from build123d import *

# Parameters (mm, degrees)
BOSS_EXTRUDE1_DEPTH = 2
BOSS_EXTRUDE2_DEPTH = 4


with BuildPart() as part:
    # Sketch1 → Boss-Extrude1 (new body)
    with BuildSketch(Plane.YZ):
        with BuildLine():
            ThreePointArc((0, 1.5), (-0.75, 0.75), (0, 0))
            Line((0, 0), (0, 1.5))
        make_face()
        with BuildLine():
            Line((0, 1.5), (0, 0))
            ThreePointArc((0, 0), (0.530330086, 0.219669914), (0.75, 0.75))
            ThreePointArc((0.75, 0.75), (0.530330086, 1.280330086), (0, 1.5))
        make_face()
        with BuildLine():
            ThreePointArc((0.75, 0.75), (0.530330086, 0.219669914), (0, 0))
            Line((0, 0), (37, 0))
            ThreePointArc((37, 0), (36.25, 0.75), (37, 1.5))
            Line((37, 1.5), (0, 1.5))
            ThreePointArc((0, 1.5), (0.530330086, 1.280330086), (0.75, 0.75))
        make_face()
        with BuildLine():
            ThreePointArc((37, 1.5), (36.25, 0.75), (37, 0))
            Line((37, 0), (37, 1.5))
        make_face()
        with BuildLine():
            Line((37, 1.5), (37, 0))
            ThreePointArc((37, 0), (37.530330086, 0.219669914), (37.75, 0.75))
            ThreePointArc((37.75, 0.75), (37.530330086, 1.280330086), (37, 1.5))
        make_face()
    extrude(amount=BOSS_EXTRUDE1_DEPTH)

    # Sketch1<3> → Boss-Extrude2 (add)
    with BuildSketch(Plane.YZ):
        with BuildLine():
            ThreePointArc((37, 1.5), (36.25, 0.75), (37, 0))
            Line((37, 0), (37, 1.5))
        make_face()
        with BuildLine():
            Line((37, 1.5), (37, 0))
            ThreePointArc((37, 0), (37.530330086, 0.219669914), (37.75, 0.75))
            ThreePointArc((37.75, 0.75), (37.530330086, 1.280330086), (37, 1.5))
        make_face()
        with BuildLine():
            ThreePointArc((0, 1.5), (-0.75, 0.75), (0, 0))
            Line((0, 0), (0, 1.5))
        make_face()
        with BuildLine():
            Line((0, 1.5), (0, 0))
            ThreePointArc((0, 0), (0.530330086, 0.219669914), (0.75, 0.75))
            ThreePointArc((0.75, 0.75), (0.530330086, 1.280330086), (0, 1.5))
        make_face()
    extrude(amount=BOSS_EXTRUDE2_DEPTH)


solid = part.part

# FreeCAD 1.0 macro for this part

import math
import FreeCAD as App
import Part
import Sketcher

V = App.Vector

doc = App.newDocument("Part")
body = doc.addObject("PartDesign::Body", "Body")

# Sketch on YZ plane
sketch1 = body.newObject("Sketcher::SketchObject", "Sketch")
sketch1.AttachmentSupport = (doc.getObject("YZ_Plane"), [""])
sketch1.MapMode = "FlatFace"
sketch1.addGeometry([
    Part.LineSegment(V(0, 0, 0), V(37, 0, 0)),  # 0
    Part.ArcOfCircle(Part.Circle(V(37, 0.75, 0), V(0, 0, 1), 0.75), math.radians(-90), math.radians(0)),  # 1
    Part.ArcOfCircle(Part.Circle(V(37, 0.75, 0), V(0, 0, 1), 0.75), math.radians(0), math.radians(90)),  # 2
    Part.LineSegment(V(37, 1.5, 0), V(0, 1.5, 0)),  # 3
    Part.ArcOfCircle(Part.Circle(V(0, 0.75, 0), V(0, 0, 1), 0.75), math.radians(90), math.radians(270)),  # 4
], False)
sketch1.addConstraint([
    Sketcher.Constraint("Tangent", 0, 2, 1, 1),
    Sketcher.Constraint("Tangent", 1, 2, 2, 1),
    Sketcher.Constraint("Tangent", 2, 2, 3, 1),
    Sketcher.Constraint("Tangent", 3, 2, 4, 1),
    Sketcher.Constraint("Tangent", 4, 2, 0, 1),
    Sketcher.Constraint("Horizontal", 0),
    Sketcher.Constraint("Horizontal", 3),
    Sketcher.Constraint("Coincident", 4, 2, -1, 1),
    Sketcher.Constraint("Equal", 1, 2),
    Sketcher.Constraint("Horizontal", 4, 3, 1, 2),
    Sketcher.Constraint("DistanceX", 0, 1, 0, 2, 37.0),
    Sketcher.Constraint("Radius", 1, 0.75),
])
pad1 = body.newObject("PartDesign::Pad", "Pad")
pad1.Profile = sketch1
pad1.Length = 2

# Sketch on YZ plane
sketch2 = body.newObject("Sketcher::SketchObject", "Sketch001")
sketch2.AttachmentSupport = (doc.getObject("YZ_Plane"), [""])
sketch2.MapMode = "FlatFace"
sketch2.addGeometry([
    Part.ArcOfCircle(Part.Circle(V(37, 0.75, 0), V(0, 0, 1), 0.75), math.radians(90), math.radians(270)),  # 0
    Part.ArcOfCircle(Part.Circle(V(37, 0.75, 0), V(0, 0, 1), 0.75), math.radians(-90), math.radians(0)),  # 1
    Part.ArcOfCircle(Part.Circle(V(37, 0.75, 0), V(0, 0, 1), 0.75), math.radians(0), math.radians(90)),  # 2
    Part.ArcOfCircle(Part.Circle(V(0, 0.75, 0), V(0, 0, 1), 0.75), math.radians(90), math.radians(270)),  # 3
    Part.ArcOfCircle(Part.Circle(V(0, 0.75, 0), V(0, 0, 1), 0.75), math.radians(-90), math.radians(0)),  # 4
    Part.ArcOfCircle(Part.Circle(V(0, 0.75, 0), V(0, 0, 1), 0.75), math.radians(0), math.radians(90)),  # 5
], False)
sketch2.addConstraint([
    Sketcher.Constraint("Tangent", 0, 2, 1, 1),
    Sketcher.Constraint("Tangent", 1, 2, 2, 1),
    Sketcher.Constraint("Tangent", 2, 2, 0, 1),
    Sketcher.Constraint("Tangent", 3, 2, 4, 1),
    Sketcher.Constraint("Tangent", 4, 2, 5, 1),
    Sketcher.Constraint("Tangent", 5, 2, 3, 1),
    Sketcher.Constraint("Coincident", 3, 2, -1, 1),
    Sketcher.Constraint("Equal", 2, 3),
    Sketcher.Constraint("PointOnObject", 3, 3, -2),
    Sketcher.Constraint("PointOnObject", 0, 2, -1),
    Sketcher.Constraint("PointOnObject", 5, 2, -2),
    Sketcher.Constraint("Horizontal", 5, 3, 1, 2),
    Sketcher.Constraint("Horizontal", 1, 2, 4, 2),
    Sketcher.Constraint("Vertical", 2, 3, 0, 2),
    Sketcher.Constraint("Vertical", 0, 2, 2, 2),
    Sketcher.Constraint("Radius", 0, 0.75),
    Sketcher.Constraint("DistanceX", -1, 1, 0, 3, 37.0),
])
pad2 = body.newObject("PartDesign::Pad", "Pad001")
pad2.Profile = sketch2
pad2.Length = 4

doc.recompute()
